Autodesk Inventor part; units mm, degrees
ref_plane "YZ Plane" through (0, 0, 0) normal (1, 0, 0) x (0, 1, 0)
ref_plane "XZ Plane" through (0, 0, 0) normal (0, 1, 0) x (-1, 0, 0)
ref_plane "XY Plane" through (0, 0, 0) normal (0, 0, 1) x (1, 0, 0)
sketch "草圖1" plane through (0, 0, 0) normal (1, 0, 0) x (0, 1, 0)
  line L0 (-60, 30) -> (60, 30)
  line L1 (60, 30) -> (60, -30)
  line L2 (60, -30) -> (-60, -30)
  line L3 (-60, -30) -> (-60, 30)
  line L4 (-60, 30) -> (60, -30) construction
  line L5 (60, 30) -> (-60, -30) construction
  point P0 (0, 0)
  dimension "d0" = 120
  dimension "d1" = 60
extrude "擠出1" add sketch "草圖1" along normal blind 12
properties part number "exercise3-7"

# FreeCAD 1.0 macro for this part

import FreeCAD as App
import Part
import Sketcher

V = App.Vector

doc = App.newDocument("Part")
body = doc.addObject("PartDesign::Body", "Body")

# Sketch on YZ plane
sketch1 = doc.addObject("Sketcher::SketchObject", "Sketch")
body.addObject(sketch1)
sketch1.AttachmentSupport = (doc.YZ_Plane, [""])
sketch1.MapMode = "FlatFace"
sketch1.addGeometry(Part.LineSegment(V(60, 30, 0), V(-60, 30, 0)), False)
sketch1.addGeometry(Part.LineSegment(V(-60, 30, 0), V(-60, -30, 0)), False)
sketch1.addGeometry(Part.LineSegment(V(-60, -30, 0), V(60, -30, 0)), False)
sketch1.addGeometry(Part.LineSegment(V(60, -30, 0), V(60, 30, 0)), False)
sketch1.addConstraint(Sketcher.Constraint("Coincident", 0, 2, 1, 1))
sketch1.addConstraint(Sketcher.Constraint("Coincident", 1, 2, 2, 1))
sketch1.addConstraint(Sketcher.Constraint("Coincident", 2, 2, 3, 1))
sketch1.addConstraint(Sketcher.Constraint("Coincident", 3, 2, 0, 1))
sketch1.addConstraint(Sketcher.Constraint("Horizontal", 0))
sketch1.addConstraint(Sketcher.Constraint("Vertical", 1))
sketch1.addConstraint(Sketcher.Constraint("Horizontal", 2))
sketch1.addConstraint(Sketcher.Constraint("Vertical", 3))
sketch1.addConstraint(Sketcher.Constraint("Symmetric", 0, 2, 2, 2, -1, 1))
sketch1.addConstraint(Sketcher.Constraint("DistanceX", 0, 2, 0, 1, 120.0))
sketch1.addConstraint(Sketcher.Constraint("DistanceY", 1, 2, 1, 1, 60.0))
pad1 = doc.addObject("PartDesign::Pad", "Pad")
body.addObject(pad1)
pad1.Profile = sketch1
pad1.Length = 12

doc.recompute()
